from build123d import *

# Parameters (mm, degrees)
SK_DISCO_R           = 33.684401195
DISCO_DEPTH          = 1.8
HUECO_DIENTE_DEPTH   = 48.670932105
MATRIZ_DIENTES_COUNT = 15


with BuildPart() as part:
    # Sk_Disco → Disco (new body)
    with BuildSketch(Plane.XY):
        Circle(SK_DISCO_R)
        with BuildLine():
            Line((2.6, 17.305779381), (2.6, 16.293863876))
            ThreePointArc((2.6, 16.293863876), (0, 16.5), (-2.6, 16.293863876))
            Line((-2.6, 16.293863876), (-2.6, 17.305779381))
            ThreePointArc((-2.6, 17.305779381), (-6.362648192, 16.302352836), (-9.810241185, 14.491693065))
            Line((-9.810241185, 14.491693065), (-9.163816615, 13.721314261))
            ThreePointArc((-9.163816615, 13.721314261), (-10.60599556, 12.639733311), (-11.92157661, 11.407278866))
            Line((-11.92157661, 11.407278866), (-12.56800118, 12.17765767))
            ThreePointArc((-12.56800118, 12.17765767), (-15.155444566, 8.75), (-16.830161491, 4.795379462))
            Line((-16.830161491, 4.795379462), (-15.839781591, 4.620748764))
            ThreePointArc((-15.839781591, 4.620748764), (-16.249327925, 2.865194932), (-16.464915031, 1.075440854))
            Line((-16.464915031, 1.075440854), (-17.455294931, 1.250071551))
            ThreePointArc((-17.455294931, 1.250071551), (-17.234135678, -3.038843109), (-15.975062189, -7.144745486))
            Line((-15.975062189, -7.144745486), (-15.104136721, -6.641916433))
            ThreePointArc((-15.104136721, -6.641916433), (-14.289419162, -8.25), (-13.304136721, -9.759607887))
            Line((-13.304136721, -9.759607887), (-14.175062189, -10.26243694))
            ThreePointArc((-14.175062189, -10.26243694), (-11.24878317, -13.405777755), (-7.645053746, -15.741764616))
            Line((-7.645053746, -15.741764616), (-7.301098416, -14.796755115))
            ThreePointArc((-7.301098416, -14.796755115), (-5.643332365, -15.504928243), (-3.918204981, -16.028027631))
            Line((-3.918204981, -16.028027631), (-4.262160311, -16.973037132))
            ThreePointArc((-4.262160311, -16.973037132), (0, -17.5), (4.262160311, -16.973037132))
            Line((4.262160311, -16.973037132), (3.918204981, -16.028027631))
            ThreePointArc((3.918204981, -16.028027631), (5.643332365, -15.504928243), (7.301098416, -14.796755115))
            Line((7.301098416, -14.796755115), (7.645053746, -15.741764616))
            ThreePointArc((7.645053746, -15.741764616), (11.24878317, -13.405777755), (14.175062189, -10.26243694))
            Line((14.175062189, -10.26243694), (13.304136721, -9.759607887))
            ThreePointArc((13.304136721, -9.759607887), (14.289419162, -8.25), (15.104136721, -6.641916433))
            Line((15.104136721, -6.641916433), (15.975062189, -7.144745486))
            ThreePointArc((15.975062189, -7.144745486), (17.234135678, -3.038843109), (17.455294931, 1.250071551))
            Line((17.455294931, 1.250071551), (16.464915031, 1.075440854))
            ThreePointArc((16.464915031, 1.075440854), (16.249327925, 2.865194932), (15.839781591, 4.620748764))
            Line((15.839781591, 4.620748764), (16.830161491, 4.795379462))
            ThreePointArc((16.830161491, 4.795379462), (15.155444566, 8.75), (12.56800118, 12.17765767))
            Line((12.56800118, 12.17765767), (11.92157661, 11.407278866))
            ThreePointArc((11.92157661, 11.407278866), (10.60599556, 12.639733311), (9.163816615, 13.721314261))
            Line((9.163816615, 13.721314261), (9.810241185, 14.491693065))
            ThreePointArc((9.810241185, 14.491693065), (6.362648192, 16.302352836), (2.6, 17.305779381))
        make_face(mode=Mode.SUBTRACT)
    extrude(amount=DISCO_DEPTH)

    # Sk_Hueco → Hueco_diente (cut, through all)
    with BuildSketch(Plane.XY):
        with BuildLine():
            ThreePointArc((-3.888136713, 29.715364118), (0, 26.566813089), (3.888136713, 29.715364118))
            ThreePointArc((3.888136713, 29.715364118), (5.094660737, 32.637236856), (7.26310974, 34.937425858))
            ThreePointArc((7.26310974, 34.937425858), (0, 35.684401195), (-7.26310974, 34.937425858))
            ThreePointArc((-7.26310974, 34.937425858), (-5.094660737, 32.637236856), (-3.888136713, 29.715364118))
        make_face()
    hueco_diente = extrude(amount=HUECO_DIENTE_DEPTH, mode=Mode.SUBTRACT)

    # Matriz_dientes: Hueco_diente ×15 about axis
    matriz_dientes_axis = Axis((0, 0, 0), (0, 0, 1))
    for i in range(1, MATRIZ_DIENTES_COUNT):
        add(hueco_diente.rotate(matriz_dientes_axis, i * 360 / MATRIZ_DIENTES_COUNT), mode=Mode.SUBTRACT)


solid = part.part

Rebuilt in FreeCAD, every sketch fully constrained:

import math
import FreeCAD as App
import Part
import Sketcher

V = App.Vector
Q = App.Units.Quantity

doc = App.newDocument("Part")
body = doc.addObject("PartDesign::Body", "Body")

# Sketch on XY plane
sketch1 = body.newObject("Sketcher::SketchObject", "Sketch")
sketch1.AttachmentSupport = (doc.getObject("XY_Plane"), [""])
sketch1.MapMode = "FlatFace"
sketch1.addGeometry(Part.Circle(V(0, 0, 0), V(0, 0, 1), 33.7), False)
sketch1.addGeometry(Part.LineSegment(V(2.6, 16.3, 0), V(2.6, 17.3, 0)), False)
sketch1.addGeometry(Part.ArcOfCircle(Part.Circle(V(0, 0, 0), V(0, 0, 1), 17.5), math.radians(56), math.radians(81)), False)
sketch1.addGeometry(Part.LineSegment(V(9.8, 14.5, 0), V(9.2, 13.7, 0)), False)
sketch1.addGeometry(Part.ArcOfCircle(Part.Circle(V(0, 0, 0), V(0, 0, 1), 16.5), math.radians(43.74), math.radians(56.26)), False)
sketch1.addGeometry(Part.LineSegment(V(11.9, 11.4, 0), V(12.6, 12.2, 0)), False)
sketch1.addGeometry(Part.ArcOfCircle(Part.Circle(V(0, 0, 0), V(0, 0, 1), 17.5), math.radians(16), math.radians(44)), False)
sketch1.addGeometry(Part.LineSegment(V(16.8, 4.8, 0), V(15.8, 4.6, 0)), False)
sketch1.addGeometry(Part.ArcOfCircle(Part.Circle(V(0, 0, 0), V(0, 0, 1), 16.5), math.radians(3.74), math.radians(16.26)), False)
sketch1.addGeometry(Part.LineSegment(V(16.5, 1.1, 0), V(17.5, 1.3, 0)), False)
sketch1.addGeometry(Part.ArcOfCircle(Part.Circle(V(0, 0, 0), V(0, 0, 1), 17.5), math.radians(-24), math.radians(4)), False)
sketch1.addGeometry(Part.LineSegment(V(16, -7.1, 0), V(15.1, -6.6, 0)), False)
sketch1.addGeometry(Part.ArcOfCircle(Part.Circle(V(0, 0, 0), V(0, 0, 1), 16.5), math.radians(-36.26), math.radians(-23.74)), False)
sketch1.addGeometry(Part.LineSegment(V(13.3, -9.8, 0), V(14.2, -10.3, 0)), False)
sketch1.addGeometry(Part.ArcOfCircle(Part.Circle(V(0, 0, 0), V(0, 0, 1), 17.5), math.radians(-64), math.radians(-36)), False)
sketch1.addGeometry(Part.LineSegment(V(7.6, -15.7, 0), V(7.3, -14.8, 0)), False)
sketch1.addGeometry(Part.ArcOfCircle(Part.Circle(V(0, 0, 0), V(0, 0, 1), 16.5), math.radians(-76.26), math.radians(-63.74)), False)
sketch1.addGeometry(Part.LineSegment(V(3.9, -16, 0), V(4.3, -17, 0)), False)
sketch1.addGeometry(Part.ArcOfCircle(Part.Circle(V(0, 0, 0), V(0, 0, 1), 17.5), math.radians(-104), math.radians(-76)), False)
sketch1.addGeometry(Part.LineSegment(V(-4.3, -17, 0), V(-3.9, -16, 0)), False)
sketch1.addGeometry(Part.ArcOfCircle(Part.Circle(V(0, 0, 0), V(0, 0, 1), 16.5), math.radians(-116.26), math.radians(-103.74)), False)
sketch1.addGeometry(Part.LineSegment(V(-7.3, -14.8, 0), V(-7.6, -15.7, 0)), False)
sketch1.addGeometry(Part.ArcOfCircle(Part.Circle(V(0, 0, 0), V(0, 0, 1), 17.5), math.radians(-144), math.radians(-116)), False)
sketch1.addGeometry(Part.LineSegment(V(-14.2, -10.3, 0), V(-13.3, -9.8, 0)), False)
sketch1.addGeometry(Part.ArcOfCircle(Part.Circle(V(0, 0, 0), V(0, 0, 1), 16.5), math.radians(-156.26), math.radians(-143.74)), False)
sketch1.addGeometry(Part.LineSegment(V(-15.1, -6.6, 0), V(-16, -7.1, 0)), False)
sketch1.addGeometry(Part.ArcOfCircle(Part.Circle(V(0, 0, 0), V(0, 0, 1), 17.5), math.radians(176), math.radians(204)), False)
sketch1.addGeometry(Part.LineSegment(V(-17.5, 1.3, 0), V(-16.5, 1.1, 0)), False)
sketch1.addGeometry(Part.ArcOfCircle(Part.Circle(V(0, 0, 0), V(0, 0, 1), 16.5), math.radians(163.74), math.radians(176.26)), False)
sketch1.addGeometry(Part.LineSegment(V(-15.8, 4.6, 0), V(-16.8, 4.8, 0)), False)
sketch1.addGeometry(Part.ArcOfCircle(Part.Circle(V(0, 0, 0), V(0, 0, 1), 17.5), math.radians(136), math.radians(164)), False)
sketch1.addGeometry(Part.LineSegment(V(-12.6, 12.2, 0), V(-11.9, 11.4, 0)), False)
sketch1.addGeometry(Part.ArcOfCircle(Part.Circle(V(0, 0, 0), V(0, 0, 1), 16.5), math.radians(123.74), math.radians(136.26)), False)
sketch1.addGeometry(Part.LineSegment(V(-9.2, 13.7, 0), V(-9.8, 14.5, 0)), False)
sketch1.addGeometry(Part.ArcOfCircle(Part.Circle(V(0, 0, 0), V(0, 0, 1), 17.5), math.radians(99), math.radians(124)), False)
sketch1.addGeometry(Part.LineSegment(V(-2.6, 17.3, 0), V(-2.6, 16.3, 0)), False)
sketch1.addGeometry(Part.ArcOfCircle(Part.Circle(V(0, 0, 0), V(0, 0, 1), 16.5), math.radians(80.93), math.radians(99.07)), False)
sketch1.addConstraint(Sketcher.Constraint("Coincident", 1, 2, 2, 2))
sketch1.addConstraint(Sketcher.Constraint("Coincident", 2, 1, 3, 1))
sketch1.addConstraint(Sketcher.Constraint("Coincident", 3, 2, 4, 2))
sketch1.addConstraint(Sketcher.Constraint("Coincident", 4, 1, 5, 1))
sketch1.addConstraint(Sketcher.Constraint("Coincident", 5, 2, 6, 2))
sketch1.addConstraint(Sketcher.Constraint("Coincident", 6, 1, 7, 1))
sketch1.addConstraint(Sketcher.Constraint("Coincident", 7, 2, 8, 2))
sketch1.addConstraint(Sketcher.Constraint("Coincident", 8, 1, 9, 1))
sketch1.addConstraint(Sketcher.Constraint("Coincident", 9, 2, 10, 2))
sketch1.addConstraint(Sketcher.Constraint("Coincident", 10, 1, 11, 1))
sketch1.addConstraint(Sketcher.Constraint("Coincident", 11, 2, 12, 2))
sketch1.addConstraint(Sketcher.Constraint("Coincident", 12, 1, 13, 1))
sketch1.addConstraint(Sketcher.Constraint("Coincident", 13, 2, 14, 2))
sketch1.addConstraint(Sketcher.Constraint("Coincident", 14, 1, 15, 1))
sketch1.addConstraint(Sketcher.Constraint("Coincident", 15, 2, 16, 2))
sketch1.addConstraint(Sketcher.Constraint("Coincident", 16, 1, 17, 1))
sketch1.addConstraint(Sketcher.Constraint("Coincident", 17, 2, 18, 2))
sketch1.addConstraint(Sketcher.Constraint("Coincident", 18, 1, 19, 1))
sketch1.addConstraint(Sketcher.Constraint("Coincident", 19, 2, 20, 2))
sketch1.addConstraint(Sketcher.Constraint("Coincident", 20, 1, 21, 1))
sketch1.addConstraint(Sketcher.Constraint("Coincident", 21, 2, 22, 2))
sketch1.addConstraint(Sketcher.Constraint("Coincident", 22, 1, 23, 1))
sketch1.addConstraint(Sketcher.Constraint("Coincident", 23, 2, 24, 2))
sketch1.addConstraint(Sketcher.Constraint("Coincident", 24, 1, 25, 1))
sketch1.addConstraint(Sketcher.Constraint("Coincident", 25, 2, 26, 2))
sketch1.addConstraint(Sketcher.Constraint("Coincident", 26, 1, 27, 1))
sketch1.addConstraint(Sketcher.Constraint("Coincident", 27, 2, 28, 2))
sketch1.addConstraint(Sketcher.Constraint("Coincident", 28, 1, 29, 1))
sketch1.addConstraint(Sketcher.Constraint("Coincident", 29, 2, 30, 2))
sketch1.addConstraint(Sketcher.Constraint("Coincident", 30, 1, 31, 1))
sketch1.addConstraint(Sketcher.Constraint("Coincident", 31, 2, 32, 2))
sketch1.addConstraint(Sketcher.Constraint("Coincident", 32, 1, 33, 1))
sketch1.addConstraint(Sketcher.Constraint("Coincident", 33, 2, 34, 2))
sketch1.addConstraint(Sketcher.Constraint("Coincident", 34, 1, 35, 1))
sketch1.addConstraint(Sketcher.Constraint("Coincident", 35, 2, 36, 2))
sketch1.addConstraint(Sketcher.Constraint("Coincident", 36, 1, 1, 1))
sketch1.addConstraint(Sketcher.Constraint("Vertical", 1))
sketch1.addConstraint(Sketcher.Constraint("Vertical", 35))
sketch1.addConstraint(Sketcher.Constraint("Coincident", 0, 3, -1, 1))
sketch1.addConstraint(Sketcher.Constraint("Coincident", 2, 3, -1, 1))
sketch1.addConstraint(Sketcher.Constraint("Coincident", 4, 3, -1, 1))
sketch1.addConstraint(Sketcher.Constraint("Coincident", 6, 3, -1, 1))
sketch1.addConstraint(Sketcher.Constraint("Coincident", 8, 3, -1, 1))
sketch1.addConstraint(Sketcher.Constraint("Coincident", 10, 3, -1, 1))
sketch1.addConstraint(Sketcher.Constraint("Coincident", 12, 3, -1, 1))
sketch1.addConstraint(Sketcher.Constraint("Coincident", 14, 3, -1, 1))
sketch1.addConstraint(Sketcher.Constraint("Coincident", 16, 3, -1, 1))
sketch1.addConstraint(Sketcher.Constraint("Coincident", 18, 3, -1, 1))
sketch1.addConstraint(Sketcher.Constraint("Coincident", 20, 3, -1, 1))
sketch1.addConstraint(Sketcher.Constraint("Coincident", 22, 3, -1, 1))
sketch1.addConstraint(Sketcher.Constraint("Coincident", 24, 3, -1, 1))
sketch1.addConstraint(Sketcher.Constraint("Coincident", 26, 3, -1, 1))
sketch1.addConstraint(Sketcher.Constraint("Coincident", 28, 3, -1, 1))
sketch1.addConstraint(Sketcher.Constraint("Coincident", 30, 3, -1, 1))
sketch1.addConstraint(Sketcher.Constraint("Coincident", 32, 3, -1, 1))
sketch1.addConstraint(Sketcher.Constraint("Coincident", 34, 3, -1, 1))
sketch1.addConstraint(Sketcher.Constraint("Coincident", 36, 3, -1, 1))
sketch1.addConstraint(Sketcher.Constraint("Equal", 2, 6))
sketch1.addConstraint(Sketcher.Constraint("Equal", 4, 8))
sketch1.addConstraint(Sketcher.Constraint("Equal", 6, 10))
sketch1.addConstraint(Sketcher.Constraint("Equal", 8, 12))
sketch1.addConstraint(Sketcher.Constraint("Equal", 10, 14))
sketch1.addConstraint(Sketcher.Constraint("Equal", 12, 16))
sketch1.addConstraint(Sketcher.Constraint("Equal", 14, 18))
sketch1.addConstraint(Sketcher.Constraint("Equal", 16, 20))
sketch1.addConstraint(Sketcher.Constraint("Equal", 18, 22))
sketch1.addConstraint(Sketcher.Constraint("Equal", 20, 24))
sketch1.addConstraint(Sketcher.Constraint("Equal", 22, 26))
sketch1.addConstraint(Sketcher.Constraint("Equal", 24, 28))
sketch1.addConstraint(Sketcher.Constraint("Equal", 26, 30))
sketch1.addConstraint(Sketcher.Constraint("Equal", 28, 32))
sketch1.addConstraint(Sketcher.Constraint("Equal", 30, 34))
sketch1.addConstraint(Sketcher.Constraint("Equal", 32, 36))
sketch1.addConstraint(Sketcher.Constraint("Parallel", 3, 5))
sketch1.addConstraint(Sketcher.Constraint("Parallel", 7, 9))
sketch1.addConstraint(Sketcher.Constraint("Parallel", 11, 13))
sketch1.addConstraint(Sketcher.Constraint("Parallel", 15, 17))
sketch1.addConstraint(Sketcher.Constraint("Parallel", 19, 21))
sketch1.addConstraint(Sketcher.Constraint("Parallel", 23, 25))
sketch1.addConstraint(Sketcher.Constraint("Parallel", 27, 29))
sketch1.addConstraint(Sketcher.Constraint("Parallel", 31, 33))
sketch1.addConstraint(Sketcher.Constraint("Horizontal", 17, 2, 18, 1))
sketch1.addConstraint(Sketcher.Constraint("Horizontal", 16, 1, 19, 2))
sketch1.addConstraint(Sketcher.Constraint("Horizontal", 15, 2, 20, 1))
sketch1.addConstraint(Sketcher.Constraint("Horizontal", 13, 2, 22, 1))
sketch1.addConstraint(Sketcher.Constraint("Horizontal", 12, 1, 23, 2))
sketch1.addConstraint(Sketcher.Constraint("Horizontal", 11, 2, 24, 1))
sketch1.addConstraint(Sketcher.Constraint("Horizontal", 9, 2, 26, 1))
sketch1.addConstraint(Sketcher.Constraint("Horizontal", 8, 1, 27, 2))
sketch1.addConstraint(Sketcher.Constraint("Horizontal", 7, 2, 28, 1))
sketch1.addConstraint(Sketcher.Constraint("Horizontal", 5, 2, 30, 1))
sketch1.addConstraint(Sketcher.Constraint("Horizontal", 4, 1, 31, 2))
sketch1.addConstraint(Sketcher.Constraint("Horizontal", 3, 2, 32, 1))
sketch1.addConstraint(Sketcher.Constraint("Horizontal", 1, 2, 34, 1))
sketch1.addConstraint(Sketcher.Constraint("Equal", 3, 5))
sketch1.addConstraint(Sketcher.Constraint("Equal", 5, 7))
sketch1.addConstraint(Sketcher.Constraint("Equal", 7, 9))
sketch1.addConstraint(Sketcher.Constraint("Equal", 9, 11))
sketch1.addConstraint(Sketcher.Constraint("Equal", 11, 13))
sketch1.addConstraint(Sketcher.Constraint("Equal", 13, 15))
sketch1.addConstraint(Sketcher.Constraint("Equal", 15, 17))
sketch1.addConstraint(Sketcher.Constraint("Radius", 2, 17.5))
sketch1.addConstraint(Sketcher.Constraint("Radius", 4, 16.5))
sketch1.addConstraint(Sketcher.Constraint("Angle", 3, Q("-130 deg")))
sketch1.addConstraint(Sketcher.Constraint("Angle", 7, Q("-170 deg")))
sketch1.addConstraint(Sketcher.Constraint("Angle", 11, Q("150 deg")))
sketch1.addConstraint(Sketcher.Constraint("Angle", 15, Q("110 deg")))
sketch1.addConstraint(Sketcher.Constraint("DistanceX", -1, 1, 1, 2, 2.6))
sketch1.addConstraint(Sketcher.Constraint("DistanceX", 12, 1, 11, 2, 1.8))
sketch1.addConstraint(Sketcher.Constraint("Diameter", 0, 67.368802))
pad1 = body.newObject("PartDesign::Pad", "Pad")
pad1.Profile = sketch1
pad1.Length = 1.8

# Sketch on XY plane
sketch2 = body.newObject("Sketcher::SketchObject", "Sketch001")
sketch2.AttachmentSupport = (doc.getObject("XY_Plane"), [""])
sketch2.MapMode = "FlatFace"
sketch2.addGeometry(Part.ArcOfCircle(Part.Circle(V(0, 30.5, 0), V(0, 0, 1), 4), math.radians(-168), math.radians(-12)), False)
sketch2.addGeometry(Part.ArcOfCircle(Part.Circle(V(12.4, 27.9, 0), V(0, 0, 1), 8.7), math.radians(126), math.radians(168)), False)
sketch2.addGeometry(Part.ArcOfCircle(Part.Circle(V(0, 0, 0), V(0, 0, 1), 35.7), math.radians(78), math.radians(102)), False)
sketch2.addGeometry(Part.ArcOfCircle(Part.Circle(V(-12.4, 27.9, 0), V(0, 0, 1), 8.7), math.radians(12), math.radians(54)), False)
sketch2.addConstraint(Sketcher.Constraint("Tangent", 0, 2, 1, 2))
sketch2.addConstraint(Sketcher.Constraint("Coincident", 1, 1, 2, 1))
sketch2.addConstraint(Sketcher.Constraint("Coincident", 2, 2, 3, 2))
sketch2.addConstraint(Sketcher.Constraint("Tangent", 3, 1, 0, 1))
sketch2.addConstraint(Sketcher.Constraint("Coincident", 2, 3, -1, 1))
sketch2.addConstraint(Sketcher.Constraint("Equal", 1, 3))
sketch2.addConstraint(Sketcher.Constraint("Symmetric", 1, 3, 3, 3, -2))
sketch2.addConstraint(Sketcher.Constraint("Radius", 0, 3.975))
sketch2.addConstraint(Sketcher.Constraint("Radius", 1, 8.725))
sketch2.addConstraint(Sketcher.Constraint("Radius", 2, 35.684401))
sketch2.addConstraint(Sketcher.Constraint("DistanceX", -1, 1, 1, 1, 7.26311))
sketch2.addConstraint(Sketcher.Constraint("DistanceY", 1, 3, 0, 3, 2.640478))
pocket1 = body.newObject("PartDesign::Pocket", "Pocket")
pocket1.Profile = sketch2
pocket1.Type = "ThroughAll"
pocket1.Reversed = True
doc.recompute()

polarpattern = body.newObject("PartDesign::PolarPattern", "PolarPattern")
polarpattern.Originals = [pocket1]
polarpattern.Axis = (doc.getObject("Z_Axis"), [""])
polarpattern.Angle = 360
polarpattern.Occurrences = 15
body.Tip = polarpattern

doc.recompute()
